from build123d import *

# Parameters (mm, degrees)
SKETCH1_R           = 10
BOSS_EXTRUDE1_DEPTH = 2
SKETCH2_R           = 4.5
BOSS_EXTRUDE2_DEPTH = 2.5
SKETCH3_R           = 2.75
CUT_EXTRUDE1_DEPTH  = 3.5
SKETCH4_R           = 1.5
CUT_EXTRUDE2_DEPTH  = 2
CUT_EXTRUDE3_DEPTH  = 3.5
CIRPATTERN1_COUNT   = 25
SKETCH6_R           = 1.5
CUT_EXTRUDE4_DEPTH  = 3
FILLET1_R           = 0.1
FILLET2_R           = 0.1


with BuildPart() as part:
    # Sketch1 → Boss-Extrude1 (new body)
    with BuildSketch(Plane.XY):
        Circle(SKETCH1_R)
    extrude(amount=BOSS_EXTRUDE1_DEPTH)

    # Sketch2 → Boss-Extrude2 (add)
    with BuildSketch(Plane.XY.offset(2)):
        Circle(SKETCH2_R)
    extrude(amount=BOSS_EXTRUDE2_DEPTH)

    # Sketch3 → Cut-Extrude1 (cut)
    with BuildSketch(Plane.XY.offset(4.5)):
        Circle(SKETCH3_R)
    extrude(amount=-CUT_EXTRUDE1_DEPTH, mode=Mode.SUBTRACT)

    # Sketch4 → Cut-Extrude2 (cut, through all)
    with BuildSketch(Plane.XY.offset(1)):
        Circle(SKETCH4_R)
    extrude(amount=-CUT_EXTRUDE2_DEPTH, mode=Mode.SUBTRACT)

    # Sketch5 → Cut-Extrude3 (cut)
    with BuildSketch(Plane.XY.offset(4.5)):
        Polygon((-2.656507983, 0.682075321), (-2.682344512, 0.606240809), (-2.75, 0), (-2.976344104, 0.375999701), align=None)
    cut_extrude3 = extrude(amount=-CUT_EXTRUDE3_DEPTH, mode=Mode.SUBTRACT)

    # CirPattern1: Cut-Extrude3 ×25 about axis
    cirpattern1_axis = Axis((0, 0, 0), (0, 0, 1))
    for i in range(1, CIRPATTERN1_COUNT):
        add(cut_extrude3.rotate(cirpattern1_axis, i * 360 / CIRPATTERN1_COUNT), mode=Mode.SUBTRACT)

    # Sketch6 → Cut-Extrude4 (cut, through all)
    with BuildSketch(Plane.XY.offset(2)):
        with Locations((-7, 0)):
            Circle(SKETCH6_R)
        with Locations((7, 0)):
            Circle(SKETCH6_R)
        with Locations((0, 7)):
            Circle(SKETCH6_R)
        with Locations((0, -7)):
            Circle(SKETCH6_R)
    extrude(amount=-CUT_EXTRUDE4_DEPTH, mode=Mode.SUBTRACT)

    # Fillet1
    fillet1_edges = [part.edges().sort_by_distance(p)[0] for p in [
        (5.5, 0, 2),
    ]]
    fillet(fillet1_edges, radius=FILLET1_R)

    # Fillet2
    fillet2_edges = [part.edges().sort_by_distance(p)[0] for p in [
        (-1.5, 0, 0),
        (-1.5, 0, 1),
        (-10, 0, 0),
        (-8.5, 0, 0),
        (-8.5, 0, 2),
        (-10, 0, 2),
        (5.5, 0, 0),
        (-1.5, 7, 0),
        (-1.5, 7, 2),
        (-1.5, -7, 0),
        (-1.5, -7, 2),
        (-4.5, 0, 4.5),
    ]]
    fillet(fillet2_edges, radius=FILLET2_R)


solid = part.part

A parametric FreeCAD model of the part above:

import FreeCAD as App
import Part
import Sketcher

V = App.Vector
Q = App.Units.Quantity


def edges_at(feature, points):
    """Names of the edges that pass closest to the given points."""
    edges = feature.Shape.Edges
    near = lambda p: min(range(len(edges)), key=lambda i: edges[i].distToShape(Part.Vertex(*p))[0])
    return sorted({f"Edge{near(p) + 1}" for p in points})

doc = App.newDocument("Part")
body = doc.addObject("PartDesign::Body", "Body")

# Sketch on XY plane
sketch1 = body.newObject("Sketcher::SketchObject", "Sketch")
sketch1.AttachmentSupport = (doc.getObject("XY_Plane"), [""])
sketch1.MapMode = "FlatFace"
sketch1.addGeometry(Part.Circle(V(0, 0, 0), V(0, 0, 1), 10), False)
sketch1.addConstraint(Sketcher.Constraint("Coincident", 0, 3, -1, 1))
sketch1.addConstraint(Sketcher.Constraint("Diameter", 0, Q("20 mm")))
pad1 = body.newObject("PartDesign::Pad", "Pad")
pad1.Profile = sketch1
pad1.Length = 2

# Sketch on XY plane
sketch2 = body.newObject("Sketcher::SketchObject", "Sketch001")
sketch2.AttachmentSupport = (doc.getObject("XY_Plane"), [""])
sketch2.MapMode = "FlatFace"
sketch2.AttachmentOffset = App.Placement(V(0, 0, 2), App.Rotation())
sketch2.addGeometry(Part.Circle(V(0, 0, 0), V(0, 0, 1), 4.5), False)
sketch2.addConstraint(Sketcher.Constraint("Coincident", 0, 3, -1, 1))
sketch2.addConstraint(Sketcher.Constraint("Diameter", 0, Q("9 mm")))
pad2 = body.newObject("PartDesign::Pad", "Pad001")
pad2.Profile = sketch2
pad2.Length = 2.5

# Sketch on XY plane
sketch3 = body.newObject("Sketcher::SketchObject", "Sketch002")
sketch3.AttachmentSupport = (doc.getObject("XY_Plane"), [""])
sketch3.MapMode = "FlatFace"
sketch3.AttachmentOffset = App.Placement(V(0, 0, 4.5), App.Rotation())
sketch3.addGeometry(Part.Circle(V(0, 0, 0), V(0, 0, 1), 2.8), False)
sketch3.addConstraint(Sketcher.Constraint("Coincident", 0, 3, -1, 1))
sketch3.addConstraint(Sketcher.Constraint("Diameter", 0, Q("5.5 mm")))
pocket1 = body.newObject("PartDesign::Pocket", "Pocket")
pocket1.Profile = sketch3
pocket1.Length = 3.5

# Sketch on XY plane
sketch4 = body.newObject("Sketcher::SketchObject", "Sketch003")
sketch4.AttachmentSupport = (doc.getObject("XY_Plane"), [""])
sketch4.MapMode = "FlatFace"
sketch4.AttachmentOffset = App.Placement(V(0, 0, 1), App.Rotation())
sketch4.addGeometry(Part.Circle(V(0, 0, 0), V(0, 0, 1), 1.5), False)
sketch4.addConstraint(Sketcher.Constraint("Coincident", 0, 3, -1, 1))
sketch4.addConstraint(Sketcher.Constraint("Diameter", 0, Q("3 mm")))
pocket2 = body.newObject("PartDesign::Pocket", "Pocket001")
pocket2.Profile = sketch4
pocket2.Type = "ThroughAll"

# Sketch on XY plane
sketch5 = body.newObject("Sketcher::SketchObject", "Sketch004")
sketch5.AttachmentSupport = (doc.getObject("XY_Plane"), [""])
sketch5.MapMode = "FlatFace"
sketch5.AttachmentOffset = App.Placement(V(0, 0, 4.5), App.Rotation())
sketch5.addGeometry(Part.LineSegment(V(-2.68, 0.61, 0), V(-2.66, 0.68, 0)), False)
sketch5.addGeometry(Part.LineSegment(V(-2.66, 0.68, 0), V(-2.98, 0.38, 0)), False)
sketch5.addGeometry(Part.LineSegment(V(-2.98, 0.38, 0), V(-2.75, 0, 0)), False)
sketch5.addGeometry(Part.LineSegment(V(-2.75, 0, 0), V(-2.68, 0.61, 0)), False)
sketch5.addConstraint(Sketcher.Constraint("Coincident", 0, 2, 1, 1))
sketch5.addConstraint(Sketcher.Constraint("Coincident", 1, 2, 2, 1))
sketch5.addConstraint(Sketcher.Constraint("Coincident", 2, 2, 3, 1))
sketch5.addConstraint(Sketcher.Constraint("Coincident", 3, 2, 0, 1))
sketch5.addConstraint(Sketcher.Constraint("PointOnObject", 2, 2, -1))
sketch5.addConstraint(Sketcher.Constraint("DistanceX", 2, 2, -1, 1, Q("2.75 mm")))
sketch5.addConstraint(Sketcher.Constraint("DistanceY", -1, 1, 1, 2, Q("0.376 mm")))
sketch5.addConstraint(Sketcher.Constraint("DistanceX", 1, 2, 3, 2, Q("0.294 mm")))
sketch5.addConstraint(Sketcher.Constraint("Distance", 2, Q("0.438871 mm")))
sketch5.addConstraint(Sketcher.Constraint("DistanceY", -1, 1, 3, 2, Q("0.606241 mm")))
sketch5.addConstraint(Sketcher.Constraint("Distance", 0, Q("0.080115 mm")))
sketch5.addConstraint(Sketcher.Constraint("Distance", 1, Q("0.442693 mm")))
pocket3 = body.newObject("PartDesign::Pocket", "Pocket002")
pocket3.Profile = sketch5
pocket3.Length = 3.5
doc.recompute()

polarpattern = body.newObject("PartDesign::PolarPattern", "PolarPattern")
polarpattern.Originals = [pocket3]
polarpattern.Axis = (doc.getObject("Z_Axis"), [""])
polarpattern.Angle = 360
polarpattern.Occurrences = 25
body.Tip = polarpattern

# Sketch on XY plane
sketch6 = body.newObject("Sketcher::SketchObject", "Sketch005")
sketch6.AttachmentSupport = (doc.getObject("XY_Plane"), [""])
sketch6.MapMode = "FlatFace"
sketch6.AttachmentOffset = App.Placement(V(0, 0, 2), App.Rotation())
sketch6.addGeometry(Part.Circle(V(-7, 0, 0), V(0, 0, 1), 1.5), False)
sketch6.addGeometry(Part.Circle(V(7, 0, 0), V(0, 0, 1), 1.5), False)
sketch6.addGeometry(Part.Circle(V(0, 7, 0), V(0, 0, 1), 1.5), False)
sketch6.addGeometry(Part.Circle(V(0, -7, 0), V(0, 0, 1), 1.5), False)
sketch6.addConstraint(Sketcher.Constraint("Equal", 0, 1))
sketch6.addConstraint(Sketcher.Constraint("Equal", 1, 2))
sketch6.addConstraint(Sketcher.Constraint("Equal", 2, 3))
sketch6.addConstraint(Sketcher.Constraint("Symmetric", 0, 3, 1, 3, -1, 1))
sketch6.addConstraint(Sketcher.Constraint("Symmetric", 2, 3, 3, 3, -1, 1))
sketch6.addConstraint(Sketcher.Constraint("PointOnObject", 0, 3, -1))
sketch6.addConstraint(Sketcher.Constraint("PointOnObject", 2, 3, -2))
sketch6.addConstraint(Sketcher.Constraint("Diameter", 0, Q("3 mm")))
sketch6.addConstraint(Sketcher.Constraint("DistanceX", 0, 3, -1, 1, Q("7 mm")))
sketch6.addConstraint(Sketcher.Constraint("DistanceY", -1, 1, 2, 3, Q("7 mm")))
pocket4 = body.newObject("PartDesign::Pocket", "Pocket003")
pocket4.Profile = sketch6
pocket4.Type = "ThroughAll"
doc.recompute()

fillet = body.newObject("PartDesign::Fillet", "Fillet")
fillet.Base = (pocket4, edges_at(pocket4, [(5.5, 0, 2)]))
fillet.Radius = 0.1
doc.recompute()

fillet2 = body.newObject("PartDesign::Fillet", "Fillet001")
fillet2.Base = (fillet, edges_at(fillet, [
    (-1.5, 0, 0),
    (-1.5, 0, 1),
    (-10, 0, 0),
    (-8.5, 0, 0),
    (-8.5, 0, 2),
    (-10, 0, 2),
    (5.5, 0, 0),
    (-1.5, 7, 0),
    (-1.5, 7, 2),
    (-1.5, -7, 0),
    (-1.5, -7, 2),
    (-4.5, 0, 4.5),
]))
fillet2.Radius = 0.1

doc.recompute()
